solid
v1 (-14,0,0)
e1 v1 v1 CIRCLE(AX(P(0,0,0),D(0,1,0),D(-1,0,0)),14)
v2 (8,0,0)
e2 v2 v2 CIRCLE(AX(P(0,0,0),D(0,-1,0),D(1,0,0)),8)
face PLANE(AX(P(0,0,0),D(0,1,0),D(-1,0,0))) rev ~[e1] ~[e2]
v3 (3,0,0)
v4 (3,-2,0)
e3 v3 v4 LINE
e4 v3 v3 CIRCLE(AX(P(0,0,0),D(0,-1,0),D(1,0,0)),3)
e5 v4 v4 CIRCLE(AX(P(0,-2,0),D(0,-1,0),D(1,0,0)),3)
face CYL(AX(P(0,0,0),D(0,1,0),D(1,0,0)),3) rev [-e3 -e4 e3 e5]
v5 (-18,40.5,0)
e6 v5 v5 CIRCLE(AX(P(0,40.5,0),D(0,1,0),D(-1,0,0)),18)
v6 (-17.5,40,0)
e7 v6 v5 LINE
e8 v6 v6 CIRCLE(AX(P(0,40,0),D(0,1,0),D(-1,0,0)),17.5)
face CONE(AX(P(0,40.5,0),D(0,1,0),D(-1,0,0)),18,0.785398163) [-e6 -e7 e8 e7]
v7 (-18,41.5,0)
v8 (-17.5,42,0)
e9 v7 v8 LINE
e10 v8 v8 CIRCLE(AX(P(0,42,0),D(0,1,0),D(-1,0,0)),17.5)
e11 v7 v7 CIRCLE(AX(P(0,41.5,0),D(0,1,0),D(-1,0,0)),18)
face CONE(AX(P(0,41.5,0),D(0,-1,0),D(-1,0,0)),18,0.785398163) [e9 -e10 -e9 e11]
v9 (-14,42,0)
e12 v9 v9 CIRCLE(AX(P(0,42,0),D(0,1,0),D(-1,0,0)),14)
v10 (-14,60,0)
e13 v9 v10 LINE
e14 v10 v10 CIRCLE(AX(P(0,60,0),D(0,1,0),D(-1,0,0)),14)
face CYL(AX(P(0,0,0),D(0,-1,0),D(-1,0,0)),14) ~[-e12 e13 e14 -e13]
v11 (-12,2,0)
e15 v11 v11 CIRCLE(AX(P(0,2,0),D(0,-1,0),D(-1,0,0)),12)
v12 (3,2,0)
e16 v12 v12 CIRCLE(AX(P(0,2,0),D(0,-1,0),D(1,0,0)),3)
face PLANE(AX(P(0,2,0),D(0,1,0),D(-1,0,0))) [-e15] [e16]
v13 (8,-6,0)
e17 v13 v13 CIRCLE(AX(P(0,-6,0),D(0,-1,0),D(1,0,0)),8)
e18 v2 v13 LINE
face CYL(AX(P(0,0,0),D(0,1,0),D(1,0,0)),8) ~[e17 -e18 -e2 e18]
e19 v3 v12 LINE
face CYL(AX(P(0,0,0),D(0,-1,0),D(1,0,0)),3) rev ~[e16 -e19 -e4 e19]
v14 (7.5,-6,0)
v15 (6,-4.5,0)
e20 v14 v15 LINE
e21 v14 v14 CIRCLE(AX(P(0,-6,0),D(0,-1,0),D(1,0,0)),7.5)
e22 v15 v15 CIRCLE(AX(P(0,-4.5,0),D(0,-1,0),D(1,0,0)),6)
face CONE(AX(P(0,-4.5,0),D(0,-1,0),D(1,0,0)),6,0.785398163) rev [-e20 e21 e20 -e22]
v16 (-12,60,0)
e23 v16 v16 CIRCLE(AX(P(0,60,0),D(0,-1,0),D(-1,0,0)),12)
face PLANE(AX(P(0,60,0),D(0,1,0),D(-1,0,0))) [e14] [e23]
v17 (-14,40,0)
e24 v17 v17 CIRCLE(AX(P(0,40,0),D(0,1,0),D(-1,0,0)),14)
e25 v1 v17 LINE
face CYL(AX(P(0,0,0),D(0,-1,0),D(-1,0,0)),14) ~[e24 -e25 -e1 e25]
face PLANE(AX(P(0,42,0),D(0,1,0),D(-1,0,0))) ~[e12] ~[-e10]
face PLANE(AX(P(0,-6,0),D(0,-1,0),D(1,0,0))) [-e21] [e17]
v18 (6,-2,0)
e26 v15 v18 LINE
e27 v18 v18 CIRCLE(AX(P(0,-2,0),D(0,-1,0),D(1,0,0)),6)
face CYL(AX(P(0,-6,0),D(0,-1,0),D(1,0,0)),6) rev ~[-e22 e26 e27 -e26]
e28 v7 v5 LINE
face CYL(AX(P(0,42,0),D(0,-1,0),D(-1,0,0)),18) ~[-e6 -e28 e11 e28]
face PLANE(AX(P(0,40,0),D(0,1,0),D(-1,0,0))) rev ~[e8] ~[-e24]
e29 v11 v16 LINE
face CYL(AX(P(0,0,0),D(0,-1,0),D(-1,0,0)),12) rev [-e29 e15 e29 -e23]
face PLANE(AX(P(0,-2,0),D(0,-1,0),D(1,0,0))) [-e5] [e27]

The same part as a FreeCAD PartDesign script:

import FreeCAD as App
import Part
import Sketcher


def edges_at(feature, points):
    """Names of the edges that pass closest to the given points."""
    edges = feature.Shape.Edges
    near = lambda p: min(range(len(edges)), key=lambda i: edges[i].distToShape(Part.Vertex(*p))[0])
    return sorted({f"Edge{near(p) + 1}" for p in points})


def faces_at(feature, points):
    """Names of the faces that lie closest to the given points."""
    faces = feature.Shape.Faces
    near = lambda p: min(range(len(faces)), key=lambda i: faces[i].distToShape(Part.Vertex(*p))[0])
    return sorted({f"Face{near(p) + 1}" for p in points})

doc = App.newDocument("Part")
body = doc.addObject("PartDesign::Body", "Body")

# Sketch on XZ plane
sketch1 = doc.addObject("Sketcher::SketchObject", "Sketch")
body.addObject(sketch1)
sketch1.AttachmentSupport = (doc.XZ_Plane, [""])
sketch1.MapMode = "FlatFace"
sketch1.addGeometry(Part.Circle(App.Vector(0, 0, 0), App.Vector(0, 0, 1), 14), False)
sketch1.addConstraint([
    Sketcher.Constraint("Coincident", 0, 3, -1, 1),
    Sketcher.Constraint("Diameter", 0, 28.0),
])
pad1 = doc.addObject("PartDesign::Pad", "Pad")
body.addObject(pad1)
pad1.Profile = sketch1
pad1.Length = 60
pad1.Reversed = True
doc.recompute()

thickness = doc.addObject("PartDesign::Thickness", "Thickness")
body.addObject(thickness)
thickness.Base = (pad1, faces_at(pad1, [(-2.651, 60, 3.841)]))
thickness.Value = 2
thickness.Reversed = True
thickness.Join = "Intersection"

# Sketch on XZ plane
sketch2 = doc.addObject("Sketcher::SketchObject", "Sketch001")
body.addObject(sketch2)
sketch2.AttachmentSupport = (doc.XZ_Plane, [""])
sketch2.MapMode = "FlatFace"
sketch2.addGeometry(Part.Circle(App.Vector(0, 0, 0), App.Vector(0, 0, 1), 3), False)
sketch2.addConstraint([
    Sketcher.Constraint("Coincident", 0, 3, -1, 1),
    Sketcher.Constraint("Diameter", 0, 6.0),
])
pocket1 = doc.addObject("PartDesign::Pocket", "Pocket")
body.addObject(pocket1)
pocket1.Profile = sketch2
pocket1.Type = "ThroughAll"

# Sketch on XZ plane
sketch3 = doc.addObject("Sketcher::SketchObject", "Sketch002")
body.addObject(sketch3)
sketch3.AttachmentSupport = (doc.XZ_Plane, [""])
sketch3.MapMode = "FlatFace"
sketch3.addGeometry([
    Part.Circle(App.Vector(0, 0, 0), App.Vector(0, 0, 1), 8),
    Part.Circle(App.Vector(0, 0, 0), App.Vector(0, 0, 1), 3),
], False)
sketch3.addConstraint([
    Sketcher.Constraint("Coincident", 0, 3, -1, 1),
    Sketcher.Constraint("Coincident", 1, 3, -1, 1),
    Sketcher.Constraint("Diameter", 0, 16.0),
    Sketcher.Constraint("Diameter", 1, 6.0),
])
pad2 = doc.addObject("PartDesign::Pad", "Pad001")
body.addObject(pad2)
pad2.Profile = sketch3
pad2.Length = 6

# Sketch on XZ plane
sketch4 = doc.addObject("Sketcher::SketchObject", "Sketch003")
body.addObject(sketch4)
sketch4.AttachmentSupport = (doc.XZ_Plane, [""])
sketch4.MapMode = "FlatFace"
sketch4.AttachmentOffset = App.Placement(App.Vector(0, 0, 6), App.Rotation())
sketch4.addGeometry([
    Part.Circle(App.Vector(0, 0, 0), App.Vector(0, 0, 1), 6),
    Part.Circle(App.Vector(0, 0, 0), App.Vector(0, 0, 1), 3),
], False)
sketch4.addConstraint([
    Sketcher.Constraint("Coincident", 0, 3, -1, 1),
    Sketcher.Constraint("Coincident", 1, 3, -1, 1),
    Sketcher.Constraint("Diameter", 0, 12.0),
    Sketcher.Constraint("Diameter", 1, 6.0),
])
pocket2 = doc.addObject("PartDesign::Pocket", "Pocket001")
body.addObject(pocket2)
pocket2.Profile = sketch4
pocket2.Length = 4
doc.recompute()

chamfer = doc.addObject("PartDesign::Chamfer", "Chamfer")
body.addObject(chamfer)
chamfer.Base = (pocket2, edges_at(pocket2, [(-6, -6, 0)]))
chamfer.Size = 1.5

# Sketch on XY plane
sketch5 = doc.addObject("Sketcher::SketchObject", "Sketch004")
body.addObject(sketch5)
sketch5.AttachmentSupport = (doc.XY_Plane, [""])
sketch5.MapMode = "FlatFace"
sketch5.addGeometry([
    Part.LineSegment(App.Vector(-18, 40, 0), App.Vector(-14, 40, 0)),
    Part.LineSegment(App.Vector(-14, 40, 0), App.Vector(-14, 42, 0)),
    Part.LineSegment(App.Vector(-14, 42, 0), App.Vector(-18, 42, 0)),
    Part.LineSegment(App.Vector(-18, 42, 0), App.Vector(-18, 40, 0)),
], False)
sketch5.addConstraint([
    Sketcher.Constraint("Coincident", 0, 2, 1, 1),
    Sketcher.Constraint("Coincident", 1, 2, 2, 1),
    Sketcher.Constraint("Coincident", 2, 2, 3, 1),
    Sketcher.Constraint("Coincident", 3, 2, 0, 1),
    Sketcher.Constraint("Horizontal", 0),
    Sketcher.Constraint("Vertical", 1),
    Sketcher.Constraint("Horizontal", 2),
    Sketcher.Constraint("Vertical", 3),
    Sketcher.Constraint("DistanceX", 0, 1, 0, 2, 4.0),
    Sketcher.Constraint("DistanceY", 1, 1, 1, 2, 2.0),
    Sketcher.Constraint("DistanceX", 2, 2, -1, 1, 18.0),
    Sketcher.Constraint("DistanceY", -1, 1, 0, 2, 40.0),
])
revolution = doc.addObject("PartDesign::Revolution", "Revolution")
body.addObject(revolution)
revolution.Profile = sketch5
revolution.ReferenceAxis = (sketch5, ["V_Axis"])
revolution.Angle = 360
doc.recompute()

chamfer2 = doc.addObject("PartDesign::Chamfer", "Chamfer001")
body.addObject(chamfer2)
chamfer2.Base = (revolution, edges_at(revolution, [(18, 40, 0), (18, 42, 0)]))
chamfer2.Size = 0.5

doc.recompute()
